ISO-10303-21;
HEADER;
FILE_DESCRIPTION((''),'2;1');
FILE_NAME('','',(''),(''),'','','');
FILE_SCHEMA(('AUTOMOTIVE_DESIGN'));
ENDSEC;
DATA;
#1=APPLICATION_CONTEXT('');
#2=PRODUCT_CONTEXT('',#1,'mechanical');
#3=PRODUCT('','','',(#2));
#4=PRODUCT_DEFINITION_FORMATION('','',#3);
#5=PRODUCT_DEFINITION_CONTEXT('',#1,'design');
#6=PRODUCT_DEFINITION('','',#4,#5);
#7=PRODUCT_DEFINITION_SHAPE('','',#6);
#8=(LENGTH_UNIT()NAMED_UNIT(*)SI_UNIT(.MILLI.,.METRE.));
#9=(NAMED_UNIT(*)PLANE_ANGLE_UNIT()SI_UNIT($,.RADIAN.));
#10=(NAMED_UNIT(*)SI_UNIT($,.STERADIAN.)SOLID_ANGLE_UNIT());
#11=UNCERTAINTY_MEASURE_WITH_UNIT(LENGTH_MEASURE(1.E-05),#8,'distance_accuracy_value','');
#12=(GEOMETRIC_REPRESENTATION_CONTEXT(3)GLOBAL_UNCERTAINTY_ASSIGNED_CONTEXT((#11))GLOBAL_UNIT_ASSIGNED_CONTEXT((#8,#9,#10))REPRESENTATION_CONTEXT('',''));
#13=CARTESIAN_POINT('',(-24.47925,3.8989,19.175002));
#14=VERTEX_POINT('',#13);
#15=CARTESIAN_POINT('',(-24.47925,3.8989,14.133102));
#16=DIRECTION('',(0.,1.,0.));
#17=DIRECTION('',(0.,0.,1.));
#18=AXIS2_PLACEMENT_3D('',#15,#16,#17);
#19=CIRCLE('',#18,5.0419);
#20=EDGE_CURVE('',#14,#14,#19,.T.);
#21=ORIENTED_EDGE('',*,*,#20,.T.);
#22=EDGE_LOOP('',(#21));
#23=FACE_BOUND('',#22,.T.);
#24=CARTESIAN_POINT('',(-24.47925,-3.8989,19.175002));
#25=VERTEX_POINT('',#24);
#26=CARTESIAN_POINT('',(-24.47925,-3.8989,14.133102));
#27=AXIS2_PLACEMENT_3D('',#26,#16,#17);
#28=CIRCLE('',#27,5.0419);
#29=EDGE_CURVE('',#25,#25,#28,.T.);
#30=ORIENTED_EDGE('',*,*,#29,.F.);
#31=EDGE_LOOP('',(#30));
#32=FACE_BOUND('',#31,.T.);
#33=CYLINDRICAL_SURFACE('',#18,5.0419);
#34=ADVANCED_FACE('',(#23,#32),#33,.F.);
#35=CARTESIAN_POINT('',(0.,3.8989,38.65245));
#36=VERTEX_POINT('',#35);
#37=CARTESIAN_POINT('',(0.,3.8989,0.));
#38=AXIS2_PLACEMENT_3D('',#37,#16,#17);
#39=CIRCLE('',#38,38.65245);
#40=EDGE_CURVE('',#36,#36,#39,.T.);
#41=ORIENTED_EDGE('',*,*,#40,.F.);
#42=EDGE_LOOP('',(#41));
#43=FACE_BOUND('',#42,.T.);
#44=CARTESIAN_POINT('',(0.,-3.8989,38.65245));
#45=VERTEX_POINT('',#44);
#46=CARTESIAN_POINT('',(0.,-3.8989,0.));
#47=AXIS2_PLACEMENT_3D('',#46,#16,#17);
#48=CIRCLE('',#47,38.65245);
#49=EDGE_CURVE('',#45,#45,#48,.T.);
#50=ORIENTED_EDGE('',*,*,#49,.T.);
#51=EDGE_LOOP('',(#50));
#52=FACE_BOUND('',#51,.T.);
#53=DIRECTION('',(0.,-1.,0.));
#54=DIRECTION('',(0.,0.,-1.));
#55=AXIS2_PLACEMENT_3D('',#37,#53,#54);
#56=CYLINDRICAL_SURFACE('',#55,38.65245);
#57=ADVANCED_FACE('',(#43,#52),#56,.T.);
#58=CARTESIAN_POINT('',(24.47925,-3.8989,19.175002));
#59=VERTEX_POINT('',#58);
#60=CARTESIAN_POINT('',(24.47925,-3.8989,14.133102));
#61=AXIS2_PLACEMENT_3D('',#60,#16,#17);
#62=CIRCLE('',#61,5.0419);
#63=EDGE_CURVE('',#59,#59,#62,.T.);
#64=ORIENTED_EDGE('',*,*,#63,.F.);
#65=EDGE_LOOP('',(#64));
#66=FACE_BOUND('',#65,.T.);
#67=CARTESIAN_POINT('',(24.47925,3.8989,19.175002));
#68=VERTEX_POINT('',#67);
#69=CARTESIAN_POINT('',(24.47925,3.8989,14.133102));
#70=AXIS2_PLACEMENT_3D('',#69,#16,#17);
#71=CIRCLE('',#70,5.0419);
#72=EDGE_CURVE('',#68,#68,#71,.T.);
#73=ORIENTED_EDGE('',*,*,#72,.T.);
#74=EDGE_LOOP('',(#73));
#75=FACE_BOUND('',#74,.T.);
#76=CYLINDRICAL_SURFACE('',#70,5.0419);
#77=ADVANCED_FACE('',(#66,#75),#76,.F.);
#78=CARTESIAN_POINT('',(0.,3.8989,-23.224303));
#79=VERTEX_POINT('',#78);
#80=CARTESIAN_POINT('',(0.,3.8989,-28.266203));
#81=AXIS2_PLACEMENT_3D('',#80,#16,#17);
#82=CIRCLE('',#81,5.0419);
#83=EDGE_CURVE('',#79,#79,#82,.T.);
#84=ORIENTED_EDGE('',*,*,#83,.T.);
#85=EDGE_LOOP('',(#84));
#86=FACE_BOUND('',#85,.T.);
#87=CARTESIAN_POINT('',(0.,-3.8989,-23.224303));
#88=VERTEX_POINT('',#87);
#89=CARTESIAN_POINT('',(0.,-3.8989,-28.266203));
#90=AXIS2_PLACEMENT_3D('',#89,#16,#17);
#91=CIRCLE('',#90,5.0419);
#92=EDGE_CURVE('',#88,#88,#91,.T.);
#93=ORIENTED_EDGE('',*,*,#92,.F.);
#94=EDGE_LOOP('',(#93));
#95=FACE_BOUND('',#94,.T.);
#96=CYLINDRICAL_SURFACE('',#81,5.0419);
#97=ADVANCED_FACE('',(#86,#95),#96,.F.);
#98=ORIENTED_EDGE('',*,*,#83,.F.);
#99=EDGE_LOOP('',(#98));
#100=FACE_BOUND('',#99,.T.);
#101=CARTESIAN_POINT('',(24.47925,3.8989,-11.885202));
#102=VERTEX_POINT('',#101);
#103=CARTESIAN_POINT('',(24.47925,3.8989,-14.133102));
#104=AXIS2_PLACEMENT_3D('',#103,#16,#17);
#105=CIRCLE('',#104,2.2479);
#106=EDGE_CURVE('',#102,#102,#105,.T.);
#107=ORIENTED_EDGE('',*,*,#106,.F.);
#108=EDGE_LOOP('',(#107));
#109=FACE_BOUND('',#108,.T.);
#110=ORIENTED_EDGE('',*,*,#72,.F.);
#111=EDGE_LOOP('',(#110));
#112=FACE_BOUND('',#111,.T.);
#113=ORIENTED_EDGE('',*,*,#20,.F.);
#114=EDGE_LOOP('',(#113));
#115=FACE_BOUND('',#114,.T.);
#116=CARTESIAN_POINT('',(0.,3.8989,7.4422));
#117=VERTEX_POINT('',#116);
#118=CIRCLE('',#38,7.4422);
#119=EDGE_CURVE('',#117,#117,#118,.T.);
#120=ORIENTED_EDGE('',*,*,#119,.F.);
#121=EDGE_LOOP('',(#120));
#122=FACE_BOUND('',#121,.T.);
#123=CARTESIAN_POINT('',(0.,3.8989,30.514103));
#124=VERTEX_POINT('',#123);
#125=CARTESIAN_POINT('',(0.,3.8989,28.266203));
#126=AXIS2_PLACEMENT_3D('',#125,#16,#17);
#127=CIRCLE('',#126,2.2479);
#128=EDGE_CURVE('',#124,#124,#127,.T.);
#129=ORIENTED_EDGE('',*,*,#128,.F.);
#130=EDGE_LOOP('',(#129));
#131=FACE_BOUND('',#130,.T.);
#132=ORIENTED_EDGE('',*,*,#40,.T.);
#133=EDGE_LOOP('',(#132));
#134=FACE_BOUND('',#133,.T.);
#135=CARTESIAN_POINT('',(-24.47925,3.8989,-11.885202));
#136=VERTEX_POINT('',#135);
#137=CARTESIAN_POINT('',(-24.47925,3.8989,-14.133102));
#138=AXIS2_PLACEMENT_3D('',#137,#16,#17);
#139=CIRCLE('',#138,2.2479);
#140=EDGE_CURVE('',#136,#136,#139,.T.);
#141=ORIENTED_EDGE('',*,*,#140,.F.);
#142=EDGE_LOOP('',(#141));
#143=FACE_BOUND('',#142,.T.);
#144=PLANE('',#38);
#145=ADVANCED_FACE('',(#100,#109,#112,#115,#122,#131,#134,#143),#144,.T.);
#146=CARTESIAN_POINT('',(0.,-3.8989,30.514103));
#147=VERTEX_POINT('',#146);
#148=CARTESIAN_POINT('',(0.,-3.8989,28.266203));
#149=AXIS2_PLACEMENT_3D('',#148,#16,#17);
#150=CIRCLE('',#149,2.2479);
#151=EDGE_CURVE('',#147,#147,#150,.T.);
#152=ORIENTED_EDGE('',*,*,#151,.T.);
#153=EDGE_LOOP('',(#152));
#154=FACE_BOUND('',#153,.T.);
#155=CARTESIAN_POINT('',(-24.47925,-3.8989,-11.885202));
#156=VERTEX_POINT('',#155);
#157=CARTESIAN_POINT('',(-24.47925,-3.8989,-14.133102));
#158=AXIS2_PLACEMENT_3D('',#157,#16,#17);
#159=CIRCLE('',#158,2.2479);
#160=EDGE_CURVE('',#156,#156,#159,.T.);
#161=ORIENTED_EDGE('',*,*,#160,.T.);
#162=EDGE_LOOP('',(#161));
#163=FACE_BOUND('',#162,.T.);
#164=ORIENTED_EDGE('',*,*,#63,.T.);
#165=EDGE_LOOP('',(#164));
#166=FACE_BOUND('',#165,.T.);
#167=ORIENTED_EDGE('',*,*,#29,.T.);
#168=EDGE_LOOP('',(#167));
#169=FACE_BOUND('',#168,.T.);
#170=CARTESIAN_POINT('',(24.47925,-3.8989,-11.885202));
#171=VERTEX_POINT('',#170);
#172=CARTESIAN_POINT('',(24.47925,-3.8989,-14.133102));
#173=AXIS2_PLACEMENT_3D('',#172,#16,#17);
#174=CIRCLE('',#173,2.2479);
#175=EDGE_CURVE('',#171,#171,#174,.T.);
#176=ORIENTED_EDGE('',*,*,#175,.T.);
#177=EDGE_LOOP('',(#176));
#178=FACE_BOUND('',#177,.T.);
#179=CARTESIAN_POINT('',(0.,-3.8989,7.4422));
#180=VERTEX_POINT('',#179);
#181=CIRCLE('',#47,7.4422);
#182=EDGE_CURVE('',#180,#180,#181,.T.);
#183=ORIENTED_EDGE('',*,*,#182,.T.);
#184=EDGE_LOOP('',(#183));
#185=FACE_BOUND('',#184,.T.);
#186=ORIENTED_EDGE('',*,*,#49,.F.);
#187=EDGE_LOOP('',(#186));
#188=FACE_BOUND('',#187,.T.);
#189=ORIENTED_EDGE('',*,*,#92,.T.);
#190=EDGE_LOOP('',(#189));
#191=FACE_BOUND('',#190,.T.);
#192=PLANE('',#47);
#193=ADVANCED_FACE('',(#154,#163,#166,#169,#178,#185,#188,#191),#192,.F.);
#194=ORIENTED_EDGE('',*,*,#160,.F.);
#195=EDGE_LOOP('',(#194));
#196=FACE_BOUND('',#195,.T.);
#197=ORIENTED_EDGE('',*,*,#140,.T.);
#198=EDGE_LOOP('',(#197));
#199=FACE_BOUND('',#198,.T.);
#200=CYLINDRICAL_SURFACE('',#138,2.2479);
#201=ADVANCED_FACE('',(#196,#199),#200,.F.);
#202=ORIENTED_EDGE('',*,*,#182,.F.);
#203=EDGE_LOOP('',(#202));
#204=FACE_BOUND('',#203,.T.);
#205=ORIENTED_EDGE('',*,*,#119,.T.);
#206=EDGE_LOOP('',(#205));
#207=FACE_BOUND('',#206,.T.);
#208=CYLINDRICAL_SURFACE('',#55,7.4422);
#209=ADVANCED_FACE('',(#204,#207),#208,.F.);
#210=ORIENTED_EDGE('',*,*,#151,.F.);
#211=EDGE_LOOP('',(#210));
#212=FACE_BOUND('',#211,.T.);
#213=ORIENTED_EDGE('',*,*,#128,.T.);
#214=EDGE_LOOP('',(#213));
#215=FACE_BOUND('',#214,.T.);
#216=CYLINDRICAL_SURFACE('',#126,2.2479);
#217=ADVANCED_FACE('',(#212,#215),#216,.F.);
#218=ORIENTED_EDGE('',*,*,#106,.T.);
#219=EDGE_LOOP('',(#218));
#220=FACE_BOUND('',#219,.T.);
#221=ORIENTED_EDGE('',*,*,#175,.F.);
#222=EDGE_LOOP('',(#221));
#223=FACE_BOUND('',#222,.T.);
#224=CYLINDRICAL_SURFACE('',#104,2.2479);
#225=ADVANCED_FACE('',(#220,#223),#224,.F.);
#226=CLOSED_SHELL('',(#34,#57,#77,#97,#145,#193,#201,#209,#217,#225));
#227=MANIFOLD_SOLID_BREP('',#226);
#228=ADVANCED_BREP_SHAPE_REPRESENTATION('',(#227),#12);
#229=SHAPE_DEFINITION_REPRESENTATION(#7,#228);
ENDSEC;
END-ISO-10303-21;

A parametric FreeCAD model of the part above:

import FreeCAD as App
import Part
import Sketcher
from FreeCAD import Vector
Q = App.Units.Quantity

doc = App.newDocument("Part")
body = doc.addObject("PartDesign::Body", "Body")

# Sketch on XZ plane
sketch1 = body.newObject("Sketcher::SketchObject", "Sketch")
sketch1.AttachmentSupport = (doc.getObject("XZ_Plane"), [""])
sketch1.MapMode = "FlatFace"
sketch1.addGeometry(Part.Circle(Vector(0, 0, 0), Vector(0, 0, 1), 39), False)
sketch1.addGeometry(Part.Circle(Vector(0, 0, 0), Vector(0, 0, 1), 7), False)
sketch1.addConstraint(Sketcher.Constraint("Coincident", 0, 3, -1, 1))
sketch1.addConstraint(Sketcher.Constraint("Coincident", 1, 3, -1, 1))
sketch1.addConstraint(Sketcher.Constraint("Diameter", 1, Q("0.586 in")))
sketch1.addConstraint(Sketcher.Constraint("Diameter", 0, Q("3.0435 in")))
pad1 = body.newObject("PartDesign::Pad", "Pad")
pad1.Profile = sketch1
pad1.Length = Q("0.307 in")
pad1.Midplane = True

# Sketch on XZ plane
sketch2 = body.newObject("Sketcher::SketchObject", "Sketch001")
sketch2.AttachmentSupport = (doc.getObject("XZ_Plane"), [""])
sketch2.MapMode = "FlatFace"
sketch2.AttachmentOffset = App.Placement(Vector(0, 0, -0.1535 * 25.4), App.Rotation())
sketch2.addGeometry(Part.Circle(Vector(0, -28, 0), Vector(0, 0, 1), 5), False)
sketch2.addGeometry(Part.Circle(Vector(24, 14, 0), Vector(0, 0, 1), 5), False)
sketch2.addGeometry(Part.Circle(Vector(-24, 14, 0), Vector(0, 0, 1), 5), False)
sketch2.addConstraint(Sketcher.Constraint("Equal", 0, 1))
sketch2.addConstraint(Sketcher.Constraint("Equal", 1, 2))
sketch2.addConstraint(Sketcher.Constraint("Symmetric", 1, 3, 2, 3, -2))
sketch2.addConstraint(Sketcher.Constraint("PointOnObject", 0, 3, -2))
sketch2.addConstraint(Sketcher.Constraint("Diameter", 0, Q("0.397 in")))
sketch2.addConstraint(Sketcher.Constraint("DistanceX", 2, 3, 1, 3, Q("1.9275 in")))
sketch2.addConstraint(Sketcher.Constraint("DistanceY", -1, 1, 1, 3, 14.133102))
sketch2.addConstraint(Sketcher.Constraint("DistanceY", 0, 3, -1, 1, 28.266203))
doc.recompute()
hole = body.newObject("PartDesign::Hole", "Hole")
hole.Profile = sketch2
hole.ThreadType = "None"
hole.Diameter = Q("0.397 in")
hole.DepthType = "ThroughAll"
hole.Reversed = True

# Sketch on XZ plane
sketch3 = body.newObject("Sketcher::SketchObject", "Sketch002")
sketch3.AttachmentSupport = (doc.getObject("XZ_Plane"), [""])
sketch3.MapMode = "FlatFace"
sketch3.AttachmentOffset = App.Placement(Vector(0, 0, -0.1535 * 25.4), App.Rotation())
sketch3.addGeometry(Part.Circle(Vector(24.5, -14.1, 0), Vector(0, 0, 1), 2.2), False)
sketch3.addGeometry(Part.Circle(Vector(0, 28.3, 0), Vector(0, 0, 1), 2.2), False)
sketch3.addGeometry(Part.Circle(Vector(-24.5, -14.1, 0), Vector(0, 0, 1), 2.2), False)
sketch3.addConstraint(Sketcher.Constraint("Equal", 0, 1))
sketch3.addConstraint(Sketcher.Constraint("Equal", 1, 2))
sketch3.addConstraint(Sketcher.Constraint("Symmetric", 0, 3, 2, 3, -2))
sketch3.addConstraint(Sketcher.Constraint("PointOnObject", 1, 3, -2))
sketch3.addConstraint(Sketcher.Constraint("Diameter", 0, Q("0.177 in")))
sketch3.addConstraint(Sketcher.Constraint("DistanceX", 2, 3, 0, 3, Q("1.9275 in")))
sketch3.addConstraint(Sketcher.Constraint("DistanceY", 0, 3, -1, 1, 14.133102))
sketch3.addConstraint(Sketcher.Constraint("DistanceY", -1, 1, 1, 3, 28.266203))
doc.recompute()
hole2 = body.newObject("PartDesign::Hole", "Hole001")
hole2.Profile = sketch3
hole2.ThreadType = "None"
hole2.Diameter = Q("0.177 in")
hole2.DepthType = "ThroughAll"
hole2.Reversed = True

doc.recompute()
